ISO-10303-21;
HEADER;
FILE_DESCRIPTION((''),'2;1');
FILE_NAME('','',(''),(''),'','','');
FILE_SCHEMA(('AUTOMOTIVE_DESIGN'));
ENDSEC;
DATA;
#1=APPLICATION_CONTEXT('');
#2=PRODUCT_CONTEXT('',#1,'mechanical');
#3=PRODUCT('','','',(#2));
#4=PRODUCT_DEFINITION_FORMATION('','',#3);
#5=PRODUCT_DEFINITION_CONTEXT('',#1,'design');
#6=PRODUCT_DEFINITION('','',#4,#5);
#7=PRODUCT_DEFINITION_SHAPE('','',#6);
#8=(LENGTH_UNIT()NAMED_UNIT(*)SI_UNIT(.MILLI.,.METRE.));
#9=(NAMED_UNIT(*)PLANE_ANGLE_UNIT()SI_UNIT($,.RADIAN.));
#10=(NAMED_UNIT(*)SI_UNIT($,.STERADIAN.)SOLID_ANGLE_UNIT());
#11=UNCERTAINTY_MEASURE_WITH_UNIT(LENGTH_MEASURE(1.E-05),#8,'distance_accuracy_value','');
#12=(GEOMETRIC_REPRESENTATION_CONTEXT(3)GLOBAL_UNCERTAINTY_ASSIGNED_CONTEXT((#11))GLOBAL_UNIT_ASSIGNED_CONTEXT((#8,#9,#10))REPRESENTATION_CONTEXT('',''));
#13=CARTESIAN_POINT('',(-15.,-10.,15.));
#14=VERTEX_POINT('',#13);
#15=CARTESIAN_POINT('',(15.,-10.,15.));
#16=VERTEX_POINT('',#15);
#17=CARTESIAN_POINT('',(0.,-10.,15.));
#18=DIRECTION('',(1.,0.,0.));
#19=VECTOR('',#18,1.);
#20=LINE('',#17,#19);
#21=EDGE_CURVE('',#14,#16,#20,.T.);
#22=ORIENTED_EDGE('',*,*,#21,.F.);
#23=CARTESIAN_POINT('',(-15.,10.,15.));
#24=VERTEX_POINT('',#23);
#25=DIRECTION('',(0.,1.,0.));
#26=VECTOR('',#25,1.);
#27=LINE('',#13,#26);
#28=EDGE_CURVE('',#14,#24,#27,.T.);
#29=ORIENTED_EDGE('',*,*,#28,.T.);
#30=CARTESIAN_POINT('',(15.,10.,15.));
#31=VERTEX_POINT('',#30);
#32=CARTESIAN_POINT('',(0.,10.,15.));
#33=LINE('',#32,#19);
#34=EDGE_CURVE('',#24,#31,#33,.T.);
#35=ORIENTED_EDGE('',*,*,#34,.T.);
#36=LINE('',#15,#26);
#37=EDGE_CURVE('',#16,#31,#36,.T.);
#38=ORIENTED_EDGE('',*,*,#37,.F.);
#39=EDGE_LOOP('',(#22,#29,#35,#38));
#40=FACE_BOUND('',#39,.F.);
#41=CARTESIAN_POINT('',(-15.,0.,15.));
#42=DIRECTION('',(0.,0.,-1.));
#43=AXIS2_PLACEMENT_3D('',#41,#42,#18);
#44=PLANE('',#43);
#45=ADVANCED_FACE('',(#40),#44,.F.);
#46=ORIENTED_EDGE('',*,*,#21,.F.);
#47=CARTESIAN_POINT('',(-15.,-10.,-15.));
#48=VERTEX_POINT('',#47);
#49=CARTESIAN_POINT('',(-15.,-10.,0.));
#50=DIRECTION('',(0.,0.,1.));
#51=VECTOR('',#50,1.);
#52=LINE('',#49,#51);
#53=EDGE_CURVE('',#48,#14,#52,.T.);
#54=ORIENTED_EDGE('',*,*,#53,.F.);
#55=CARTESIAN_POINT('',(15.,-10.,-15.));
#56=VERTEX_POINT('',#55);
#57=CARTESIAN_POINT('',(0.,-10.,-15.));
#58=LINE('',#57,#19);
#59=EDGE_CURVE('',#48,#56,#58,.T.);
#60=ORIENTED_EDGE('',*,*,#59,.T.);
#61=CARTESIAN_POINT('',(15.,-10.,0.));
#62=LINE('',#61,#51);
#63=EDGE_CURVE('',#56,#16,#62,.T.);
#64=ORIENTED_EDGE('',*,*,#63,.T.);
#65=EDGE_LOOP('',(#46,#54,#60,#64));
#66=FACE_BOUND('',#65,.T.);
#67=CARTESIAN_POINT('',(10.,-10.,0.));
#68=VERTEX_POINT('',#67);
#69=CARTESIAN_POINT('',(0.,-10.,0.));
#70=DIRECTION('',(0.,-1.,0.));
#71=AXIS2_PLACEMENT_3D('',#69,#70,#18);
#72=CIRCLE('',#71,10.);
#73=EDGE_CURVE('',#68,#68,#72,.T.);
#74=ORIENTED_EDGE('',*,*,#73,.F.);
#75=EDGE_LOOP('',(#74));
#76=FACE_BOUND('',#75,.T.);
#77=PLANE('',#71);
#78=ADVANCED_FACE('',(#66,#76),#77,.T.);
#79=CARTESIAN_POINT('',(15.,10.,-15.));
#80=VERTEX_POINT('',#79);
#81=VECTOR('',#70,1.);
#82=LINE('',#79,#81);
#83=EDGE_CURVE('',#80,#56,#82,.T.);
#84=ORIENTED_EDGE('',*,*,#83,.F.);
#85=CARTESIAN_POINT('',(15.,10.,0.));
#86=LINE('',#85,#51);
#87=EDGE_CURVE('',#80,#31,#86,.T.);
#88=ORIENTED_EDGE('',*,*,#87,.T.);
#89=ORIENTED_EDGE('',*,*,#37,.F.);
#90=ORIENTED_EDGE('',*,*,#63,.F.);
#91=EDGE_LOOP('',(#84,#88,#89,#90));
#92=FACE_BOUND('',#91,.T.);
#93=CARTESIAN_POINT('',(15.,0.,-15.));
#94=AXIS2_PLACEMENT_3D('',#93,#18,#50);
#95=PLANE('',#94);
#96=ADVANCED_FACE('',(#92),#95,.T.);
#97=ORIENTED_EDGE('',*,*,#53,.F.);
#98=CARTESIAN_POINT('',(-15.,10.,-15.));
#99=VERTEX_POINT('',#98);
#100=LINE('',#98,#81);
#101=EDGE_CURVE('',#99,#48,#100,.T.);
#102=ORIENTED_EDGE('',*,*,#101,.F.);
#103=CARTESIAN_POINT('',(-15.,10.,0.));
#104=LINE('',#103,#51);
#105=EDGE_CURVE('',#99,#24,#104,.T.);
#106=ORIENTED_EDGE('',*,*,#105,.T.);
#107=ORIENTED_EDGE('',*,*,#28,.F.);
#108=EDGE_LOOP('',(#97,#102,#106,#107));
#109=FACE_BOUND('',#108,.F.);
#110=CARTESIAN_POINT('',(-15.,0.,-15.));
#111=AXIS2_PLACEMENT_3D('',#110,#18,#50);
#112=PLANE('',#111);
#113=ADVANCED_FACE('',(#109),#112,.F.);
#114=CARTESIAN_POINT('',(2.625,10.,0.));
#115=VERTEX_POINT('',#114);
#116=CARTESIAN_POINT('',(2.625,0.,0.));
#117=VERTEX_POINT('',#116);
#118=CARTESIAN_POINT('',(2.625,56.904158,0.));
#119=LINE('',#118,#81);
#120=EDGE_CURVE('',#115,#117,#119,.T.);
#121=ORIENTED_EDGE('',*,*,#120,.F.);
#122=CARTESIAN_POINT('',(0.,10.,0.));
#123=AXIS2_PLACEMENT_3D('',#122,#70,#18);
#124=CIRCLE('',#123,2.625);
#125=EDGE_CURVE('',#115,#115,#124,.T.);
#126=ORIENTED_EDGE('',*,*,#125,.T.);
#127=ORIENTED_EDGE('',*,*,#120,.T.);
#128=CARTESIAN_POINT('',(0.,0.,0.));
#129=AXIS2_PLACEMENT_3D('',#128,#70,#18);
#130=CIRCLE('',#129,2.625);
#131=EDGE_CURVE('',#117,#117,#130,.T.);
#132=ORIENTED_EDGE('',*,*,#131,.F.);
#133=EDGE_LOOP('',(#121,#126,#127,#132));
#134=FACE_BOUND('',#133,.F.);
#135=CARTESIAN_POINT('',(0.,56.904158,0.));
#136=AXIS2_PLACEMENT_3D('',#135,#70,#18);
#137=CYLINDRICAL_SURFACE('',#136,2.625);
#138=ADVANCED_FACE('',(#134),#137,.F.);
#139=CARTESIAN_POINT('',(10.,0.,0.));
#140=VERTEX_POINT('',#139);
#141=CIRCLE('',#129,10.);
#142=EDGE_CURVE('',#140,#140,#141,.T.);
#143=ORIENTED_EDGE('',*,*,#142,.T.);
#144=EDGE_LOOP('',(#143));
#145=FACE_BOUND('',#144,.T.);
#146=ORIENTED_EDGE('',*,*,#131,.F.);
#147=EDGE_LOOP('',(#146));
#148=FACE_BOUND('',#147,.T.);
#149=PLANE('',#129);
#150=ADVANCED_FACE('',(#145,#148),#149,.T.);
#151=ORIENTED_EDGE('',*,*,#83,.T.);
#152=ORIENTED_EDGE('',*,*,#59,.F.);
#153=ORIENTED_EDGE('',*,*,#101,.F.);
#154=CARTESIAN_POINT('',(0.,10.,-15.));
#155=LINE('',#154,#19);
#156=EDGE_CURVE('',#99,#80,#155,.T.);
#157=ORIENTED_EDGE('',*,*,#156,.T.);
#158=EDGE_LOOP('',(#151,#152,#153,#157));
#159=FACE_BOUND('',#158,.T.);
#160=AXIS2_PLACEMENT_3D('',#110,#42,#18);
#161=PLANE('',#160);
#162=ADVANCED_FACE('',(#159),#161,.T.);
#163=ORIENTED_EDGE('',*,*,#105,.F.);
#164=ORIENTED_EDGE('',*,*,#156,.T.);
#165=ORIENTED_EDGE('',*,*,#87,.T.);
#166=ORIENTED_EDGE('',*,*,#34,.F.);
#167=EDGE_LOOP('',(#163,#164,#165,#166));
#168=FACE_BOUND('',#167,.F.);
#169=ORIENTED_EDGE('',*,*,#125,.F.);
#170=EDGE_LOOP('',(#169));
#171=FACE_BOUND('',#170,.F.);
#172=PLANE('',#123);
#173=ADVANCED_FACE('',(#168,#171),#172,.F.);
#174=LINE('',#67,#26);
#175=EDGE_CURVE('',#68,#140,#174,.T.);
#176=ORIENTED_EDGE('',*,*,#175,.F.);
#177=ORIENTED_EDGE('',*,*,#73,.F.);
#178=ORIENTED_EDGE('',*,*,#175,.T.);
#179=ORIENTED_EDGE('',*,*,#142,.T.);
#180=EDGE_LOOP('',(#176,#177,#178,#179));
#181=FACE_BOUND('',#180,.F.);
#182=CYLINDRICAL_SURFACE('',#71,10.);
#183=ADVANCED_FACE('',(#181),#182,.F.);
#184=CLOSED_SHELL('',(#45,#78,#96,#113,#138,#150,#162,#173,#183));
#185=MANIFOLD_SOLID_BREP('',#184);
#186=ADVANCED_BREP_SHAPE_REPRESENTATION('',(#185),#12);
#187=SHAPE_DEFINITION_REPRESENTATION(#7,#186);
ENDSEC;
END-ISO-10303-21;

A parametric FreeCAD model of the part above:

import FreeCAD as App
import Part
import Sketcher
from FreeCAD import Vector
Q = App.Units.Quantity


def add_polygon(sketch, points):
    """Adds a closed chain of lines whose ends are joined by coincident constraints."""
    first, n = sketch.GeometryCount, len(points)
    for a, b in zip(points, points[1:] + points[:1]):
        sketch.addGeometry(Part.LineSegment(App.Vector(*a, 0), App.Vector(*b, 0)), False)
    for i in range(n):
        sketch.addConstraint(Sketcher.Constraint("Coincident", first + i, 2, first + (i + 1) % n, 1))

doc = App.newDocument("Part")
body = doc.addObject("PartDesign::Body", "Body")

# Sketch on XZ plane
sketch1 = body.newObject("Sketcher::SketchObject", "Sketch")
sketch1.AttachmentSupport = (doc.getObject("XZ_Plane"), [""])
sketch1.MapMode = "FlatFace"
add_polygon(sketch1, [(-15, 15), (-15, -15), (15, -15), (15, 15)])  # lines 0-3
sketch1.addConstraint(Sketcher.Constraint("Vertical", 0))
sketch1.addConstraint(Sketcher.Constraint("Horizontal", 1))
sketch1.addConstraint(Sketcher.Constraint("Vertical", 2))
sketch1.addConstraint(Sketcher.Constraint("Horizontal", 3))
sketch1.addConstraint(Sketcher.Constraint("Symmetric", 0, 2, 2, 2, -1, 1))
sketch1.addConstraint(Sketcher.Constraint("Equal", 3, 0))
sketch1.addConstraint(Sketcher.Constraint("DistanceX", 1, 1, 1, 2, Q("30 mm")))
pad1 = body.newObject("PartDesign::Pad", "Pad")
pad1.Profile = sketch1
pad1.Length = 20
pad1.Midplane = True

# Sketch on XZ plane
sketch2 = body.newObject("Sketcher::SketchObject", "Sketch001")
sketch2.AttachmentSupport = (doc.getObject("XZ_Plane"), [""])
sketch2.MapMode = "FlatFace"
sketch2.AttachmentOffset = App.Placement(Vector(0, 0, 10), App.Rotation())
sketch2.addGeometry(Part.Circle(Vector(0, 0, 0), Vector(0, 0, 1), 10), False)
sketch2.addConstraint(Sketcher.Constraint("Coincident", 0, 3, -1, 1))
sketch2.addConstraint(Sketcher.Constraint("Diameter", 0, Q("20 mm")))
pocket1 = body.newObject("PartDesign::Pocket", "Pocket")
pocket1.Profile = sketch2
pocket1.Length = 10

# Sketch on XZ plane
sketch3 = body.newObject("Sketcher::SketchObject", "Sketch002")
sketch3.AttachmentSupport = (doc.getObject("XZ_Plane"), [""])
sketch3.MapMode = "FlatFace"
sketch3.AttachmentOffset = App.Placement(Vector(0, 0, -10), App.Rotation())
sketch3.addGeometry(Part.Circle(Vector(0, 0, 0), Vector(0, 0, 1), 2.625), False)
sketch3.addConstraint(Sketcher.Constraint("Coincident", 0, 3, -1, 1))
sketch3.addConstraint(Sketcher.Constraint("Diameter", 0, Q("5.25 mm")))
doc.recompute()
hole = body.newObject("PartDesign::Hole", "Hole")
hole.Profile = sketch3
hole.ThreadType = "None"
hole.Diameter = 5.25
hole.DepthType = "ThroughAll"
hole.Reversed = True

doc.recompute()
